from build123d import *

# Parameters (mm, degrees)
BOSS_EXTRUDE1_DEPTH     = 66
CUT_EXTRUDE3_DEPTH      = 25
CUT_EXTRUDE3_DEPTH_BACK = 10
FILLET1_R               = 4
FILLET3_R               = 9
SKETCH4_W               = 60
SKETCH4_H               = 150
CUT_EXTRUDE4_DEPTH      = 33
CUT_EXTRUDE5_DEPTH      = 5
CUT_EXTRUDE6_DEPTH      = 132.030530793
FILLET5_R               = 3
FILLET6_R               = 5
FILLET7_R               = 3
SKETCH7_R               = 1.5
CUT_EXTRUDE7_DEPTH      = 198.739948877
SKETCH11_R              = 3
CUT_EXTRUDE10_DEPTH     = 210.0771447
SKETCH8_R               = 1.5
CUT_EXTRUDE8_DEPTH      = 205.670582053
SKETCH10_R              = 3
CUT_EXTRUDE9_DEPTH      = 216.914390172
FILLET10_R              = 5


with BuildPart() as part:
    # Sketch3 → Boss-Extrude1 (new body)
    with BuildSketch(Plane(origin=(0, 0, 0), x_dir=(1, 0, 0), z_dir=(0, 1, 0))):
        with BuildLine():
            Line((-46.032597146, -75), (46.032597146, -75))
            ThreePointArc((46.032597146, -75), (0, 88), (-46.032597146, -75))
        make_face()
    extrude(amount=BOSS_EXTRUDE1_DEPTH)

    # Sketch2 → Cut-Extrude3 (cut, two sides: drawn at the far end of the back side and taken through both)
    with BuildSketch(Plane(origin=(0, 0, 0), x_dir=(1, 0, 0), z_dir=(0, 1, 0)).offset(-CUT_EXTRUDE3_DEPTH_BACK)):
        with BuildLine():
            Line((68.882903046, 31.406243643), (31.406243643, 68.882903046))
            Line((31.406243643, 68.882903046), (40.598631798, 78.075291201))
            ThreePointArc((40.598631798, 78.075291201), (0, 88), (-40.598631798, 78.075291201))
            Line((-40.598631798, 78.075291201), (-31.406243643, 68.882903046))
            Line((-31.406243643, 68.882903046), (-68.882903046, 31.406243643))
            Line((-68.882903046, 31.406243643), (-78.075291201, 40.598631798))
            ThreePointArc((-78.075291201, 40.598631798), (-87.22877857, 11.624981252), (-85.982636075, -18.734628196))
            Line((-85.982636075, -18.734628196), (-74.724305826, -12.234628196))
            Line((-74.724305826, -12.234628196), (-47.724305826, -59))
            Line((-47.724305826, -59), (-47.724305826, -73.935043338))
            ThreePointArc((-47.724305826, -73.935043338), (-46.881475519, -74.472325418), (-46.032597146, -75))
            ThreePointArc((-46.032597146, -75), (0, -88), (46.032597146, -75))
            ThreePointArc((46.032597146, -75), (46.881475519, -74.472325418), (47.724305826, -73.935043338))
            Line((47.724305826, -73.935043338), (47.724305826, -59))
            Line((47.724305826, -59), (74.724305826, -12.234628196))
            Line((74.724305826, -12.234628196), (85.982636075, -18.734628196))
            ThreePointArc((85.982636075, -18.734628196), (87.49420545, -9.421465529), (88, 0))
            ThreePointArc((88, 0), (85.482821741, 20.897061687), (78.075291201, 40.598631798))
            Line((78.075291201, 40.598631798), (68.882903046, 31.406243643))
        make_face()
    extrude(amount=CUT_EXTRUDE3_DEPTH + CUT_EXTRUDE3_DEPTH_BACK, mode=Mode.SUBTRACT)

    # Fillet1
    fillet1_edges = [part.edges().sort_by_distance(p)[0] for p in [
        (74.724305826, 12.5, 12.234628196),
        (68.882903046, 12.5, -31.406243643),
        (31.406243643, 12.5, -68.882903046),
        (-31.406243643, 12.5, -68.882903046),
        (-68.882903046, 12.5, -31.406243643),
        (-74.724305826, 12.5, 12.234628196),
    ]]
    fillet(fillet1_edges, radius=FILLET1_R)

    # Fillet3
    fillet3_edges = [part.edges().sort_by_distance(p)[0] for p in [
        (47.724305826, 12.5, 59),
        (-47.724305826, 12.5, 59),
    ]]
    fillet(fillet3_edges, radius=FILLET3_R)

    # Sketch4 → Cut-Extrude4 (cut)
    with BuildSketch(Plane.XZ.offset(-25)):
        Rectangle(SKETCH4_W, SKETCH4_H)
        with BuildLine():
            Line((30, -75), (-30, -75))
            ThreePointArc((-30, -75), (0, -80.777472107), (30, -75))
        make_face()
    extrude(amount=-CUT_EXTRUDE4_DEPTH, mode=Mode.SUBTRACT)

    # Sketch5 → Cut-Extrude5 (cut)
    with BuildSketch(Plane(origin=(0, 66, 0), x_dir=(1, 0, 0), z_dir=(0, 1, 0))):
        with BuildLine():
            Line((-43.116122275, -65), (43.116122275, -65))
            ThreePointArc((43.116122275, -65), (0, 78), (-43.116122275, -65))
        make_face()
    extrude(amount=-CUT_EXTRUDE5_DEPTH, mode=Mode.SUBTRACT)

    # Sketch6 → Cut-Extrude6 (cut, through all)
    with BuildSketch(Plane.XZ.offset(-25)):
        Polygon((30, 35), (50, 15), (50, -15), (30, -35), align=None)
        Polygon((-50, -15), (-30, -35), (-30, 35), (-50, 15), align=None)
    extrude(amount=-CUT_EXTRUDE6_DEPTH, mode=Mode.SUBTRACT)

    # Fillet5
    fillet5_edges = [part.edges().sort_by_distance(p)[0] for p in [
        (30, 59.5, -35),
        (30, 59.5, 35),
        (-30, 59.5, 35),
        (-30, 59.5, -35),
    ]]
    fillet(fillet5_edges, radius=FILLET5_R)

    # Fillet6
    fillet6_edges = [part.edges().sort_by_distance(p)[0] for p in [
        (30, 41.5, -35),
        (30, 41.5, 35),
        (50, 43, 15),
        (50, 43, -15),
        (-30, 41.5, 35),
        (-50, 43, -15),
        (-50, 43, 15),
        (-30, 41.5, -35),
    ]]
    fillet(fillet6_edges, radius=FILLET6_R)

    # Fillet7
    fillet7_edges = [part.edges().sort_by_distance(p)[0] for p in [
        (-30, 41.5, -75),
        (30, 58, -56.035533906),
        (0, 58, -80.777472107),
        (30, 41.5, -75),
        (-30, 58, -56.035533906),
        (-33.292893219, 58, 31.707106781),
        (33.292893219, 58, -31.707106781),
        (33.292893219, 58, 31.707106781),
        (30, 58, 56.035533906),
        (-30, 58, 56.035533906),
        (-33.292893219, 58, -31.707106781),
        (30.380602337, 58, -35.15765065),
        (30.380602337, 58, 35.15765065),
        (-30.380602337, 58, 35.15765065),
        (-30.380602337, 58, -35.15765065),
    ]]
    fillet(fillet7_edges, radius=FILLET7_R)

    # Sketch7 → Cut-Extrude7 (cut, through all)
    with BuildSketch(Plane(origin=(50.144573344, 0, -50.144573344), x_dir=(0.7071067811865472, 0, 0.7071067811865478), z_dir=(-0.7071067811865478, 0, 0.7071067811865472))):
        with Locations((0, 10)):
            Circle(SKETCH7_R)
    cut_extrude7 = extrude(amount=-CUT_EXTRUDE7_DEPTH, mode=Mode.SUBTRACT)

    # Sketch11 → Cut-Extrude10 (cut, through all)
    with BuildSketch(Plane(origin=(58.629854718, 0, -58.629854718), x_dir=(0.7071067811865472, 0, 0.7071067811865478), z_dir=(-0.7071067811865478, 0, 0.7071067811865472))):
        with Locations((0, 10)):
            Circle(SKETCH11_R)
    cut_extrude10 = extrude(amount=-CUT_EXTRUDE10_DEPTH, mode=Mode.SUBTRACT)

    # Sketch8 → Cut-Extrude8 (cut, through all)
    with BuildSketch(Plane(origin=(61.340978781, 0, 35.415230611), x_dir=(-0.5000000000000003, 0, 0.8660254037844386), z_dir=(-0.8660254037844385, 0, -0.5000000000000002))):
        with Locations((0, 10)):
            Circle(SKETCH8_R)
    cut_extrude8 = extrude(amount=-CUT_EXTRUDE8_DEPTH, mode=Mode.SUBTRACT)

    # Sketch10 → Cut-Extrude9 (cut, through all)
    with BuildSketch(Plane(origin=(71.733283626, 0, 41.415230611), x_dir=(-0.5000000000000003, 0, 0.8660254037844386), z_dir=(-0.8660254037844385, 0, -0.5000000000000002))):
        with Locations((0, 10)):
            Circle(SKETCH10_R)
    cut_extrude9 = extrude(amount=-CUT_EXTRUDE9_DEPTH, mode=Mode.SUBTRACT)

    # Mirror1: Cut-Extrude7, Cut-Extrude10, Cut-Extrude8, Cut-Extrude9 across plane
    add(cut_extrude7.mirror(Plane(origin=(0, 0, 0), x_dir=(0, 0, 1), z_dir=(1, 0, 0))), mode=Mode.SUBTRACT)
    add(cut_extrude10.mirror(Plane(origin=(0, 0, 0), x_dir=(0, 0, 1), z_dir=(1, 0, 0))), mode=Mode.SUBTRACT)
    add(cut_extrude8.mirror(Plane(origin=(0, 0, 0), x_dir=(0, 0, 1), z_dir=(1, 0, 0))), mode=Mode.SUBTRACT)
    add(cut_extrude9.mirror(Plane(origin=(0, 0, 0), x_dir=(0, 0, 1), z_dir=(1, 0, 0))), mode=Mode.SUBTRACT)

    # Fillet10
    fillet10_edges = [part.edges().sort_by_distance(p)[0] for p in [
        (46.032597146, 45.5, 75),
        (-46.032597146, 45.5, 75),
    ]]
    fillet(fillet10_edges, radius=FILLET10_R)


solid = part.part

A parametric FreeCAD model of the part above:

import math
import FreeCAD as App
import Part
import Sketcher
Q = App.Units.Quantity


def edges_at(feature, points):
    """Names of the edges that pass closest to the given points."""
    edges = feature.Shape.Edges
    near = lambda p: min(range(len(edges)), key=lambda i: edges[i].distToShape(Part.Vertex(*p))[0])
    return sorted({f"Edge{near(p) + 1}" for p in points})

doc = App.newDocument("Part")
body = doc.addObject("PartDesign::Body", "Body")

sketch1 = body.newObject("Sketcher::SketchObject", "Sketch")
sketch1.AttachmentSupport = (doc.getObject("XZ_Plane"), [""])
sketch1.MapMode = "FlatFace"
sketch1.addGeometry(Part.LineSegment(App.Vector(-46, 75, 0), App.Vector(46, 75, 0)), False)
sketch1.addGeometry(Part.ArcOfCircle(Part.Circle(App.Vector(0, 0, 0), App.Vector(0, 0, 1), 88), math.radians(122), math.radians(418)), False)
sketch1.addConstraint(Sketcher.Constraint("Coincident", 0, 1, 1, 1))
sketch1.addConstraint(Sketcher.Constraint("Coincident", 1, 2, 0, 2))
sketch1.addConstraint(Sketcher.Constraint("Horizontal", 0))
sketch1.addConstraint(Sketcher.Constraint("Coincident", 1, 3, -1, 1))
sketch1.addConstraint(Sketcher.Constraint("Radius", 1, Q("88 mm")))
sketch1.addConstraint(Sketcher.Constraint("DistanceY", -1, 1, 0, 1, Q("75 mm")))
pad1 = body.newObject("PartDesign::Pad", "Pad")
pad1.Profile = sketch1
pad1.Length = 66
pad1.Reversed = True

sketch2 = body.newObject("Sketcher::SketchObject", "Sketch001")
sketch2.AttachmentSupport = (doc.getObject("XZ_Plane"), [""])
sketch2.MapMode = "FlatFace"
sketch2.addGeometry(Part.LineSegment(App.Vector(68.9, -31.4, 0), App.Vector(31.4, -68.9, 0)), False)
sketch2.addGeometry(Part.LineSegment(App.Vector(31.4, -68.9, 0), App.Vector(40.6, -78.1, 0)), False)
sketch2.addGeometry(Part.ArcOfCircle(Part.Circle(App.Vector(0, 0, 0), App.Vector(0, 0, 1), 88), math.radians(-117), math.radians(-63)), False)
sketch2.addGeometry(Part.LineSegment(App.Vector(-40.6, -78.1, 0), App.Vector(-31.4, -68.9, 0)), False)
sketch2.addGeometry(Part.LineSegment(App.Vector(-31.4, -68.9, 0), App.Vector(-68.9, -31.4, 0)), False)
sketch2.addGeometry(Part.LineSegment(App.Vector(-68.9, -31.4, 0), App.Vector(-78.1, -40.6, 0)), False)
sketch2.addGeometry(Part.ArcOfCircle(Part.Circle(App.Vector(0, 0, 0), App.Vector(0, 0, 1), 88), math.radians(168), math.radians(207)), False)
sketch2.addGeometry(Part.LineSegment(App.Vector(-86, 18.7, 0), App.Vector(-74.7, 12.2, 0)), False)
sketch2.addGeometry(Part.LineSegment(App.Vector(-74.7, 12.2, 0), App.Vector(-47.7, 59, 0)), False)
sketch2.addGeometry(Part.LineSegment(App.Vector(-47.7, 59, 0), App.Vector(-47.7, 73.9, 0)), False)
sketch2.addGeometry(Part.ArcOfCircle(Part.Circle(App.Vector(0, 0, 0), App.Vector(0, 0, 1), 88), math.radians(121.54), math.radians(122.84)), False)
sketch2.addGeometry(Part.ArcOfCircle(Part.Circle(App.Vector(0, 0, 0), App.Vector(0, 0, 1), 88), math.radians(58), math.radians(122)), False)
sketch2.addGeometry(Part.ArcOfCircle(Part.Circle(App.Vector(0, 0, 0), App.Vector(0, 0, 1), 88), math.radians(57.16), math.radians(58.46)), False)
sketch2.addGeometry(Part.LineSegment(App.Vector(47.7, 73.9, 0), App.Vector(47.7, 59, 0)), False)
sketch2.addGeometry(Part.LineSegment(App.Vector(47.7, 59, 0), App.Vector(74.7, 12.2, 0)), False)
sketch2.addGeometry(Part.LineSegment(App.Vector(74.7, 12.2, 0), App.Vector(86, 18.7, 0)), False)
sketch2.addGeometry(Part.ArcOfCircle(Part.Circle(App.Vector(0, 0, 0), App.Vector(0, 0, 1), 88), math.radians(0), math.radians(12.29)), False)
sketch2.addGeometry(Part.ArcOfCircle(Part.Circle(App.Vector(0, 0, 0), App.Vector(0, 0, 1), 88), math.radians(-27), math.radians(0)), False)
sketch2.addGeometry(Part.LineSegment(App.Vector(78.1, -40.6, 0), App.Vector(68.9, -31.4, 0)), False)
sketch2.addConstraint(Sketcher.Constraint("Coincident", 0, 2, 1, 1))
sketch2.addConstraint(Sketcher.Constraint("Coincident", 1, 2, 2, 2))
sketch2.addConstraint(Sketcher.Constraint("Coincident", 2, 1, 3, 1))
sketch2.addConstraint(Sketcher.Constraint("Coincident", 3, 2, 4, 1))
sketch2.addConstraint(Sketcher.Constraint("Coincident", 4, 2, 5, 1))
sketch2.addConstraint(Sketcher.Constraint("Coincident", 5, 2, 6, 2))
sketch2.addConstraint(Sketcher.Constraint("Coincident", 6, 1, 7, 1))
sketch2.addConstraint(Sketcher.Constraint("Coincident", 7, 2, 8, 1))
sketch2.addConstraint(Sketcher.Constraint("Coincident", 8, 2, 9, 1))
sketch2.addConstraint(Sketcher.Constraint("Coincident", 9, 2, 10, 2))
sketch2.addConstraint(Sketcher.Constraint("Tangent", 10, 1, 11, 2))
sketch2.addConstraint(Sketcher.Constraint("Tangent", 11, 1, 12, 2))
sketch2.addConstraint(Sketcher.Constraint("Coincident", 12, 1, 13, 1))
sketch2.addConstraint(Sketcher.Constraint("Coincident", 13, 2, 14, 1))
sketch2.addConstraint(Sketcher.Constraint("Coincident", 14, 2, 15, 1))
sketch2.addConstraint(Sketcher.Constraint("Coincident", 15, 2, 16, 2))
sketch2.addConstraint(Sketcher.Constraint("Tangent", 16, 1, 17, 2))
sketch2.addConstraint(Sketcher.Constraint("Coincident", 17, 1, 18, 1))
sketch2.addConstraint(Sketcher.Constraint("Coincident", 18, 2, 0, 1))
sketch2.addConstraint(Sketcher.Constraint("Vertical", 9))
sketch2.addConstraint(Sketcher.Constraint("Vertical", 13))
sketch2.addConstraint(Sketcher.Constraint("Coincident", 2, 3, -1, 1))
sketch2.addConstraint(Sketcher.Constraint("Coincident", 6, 3, -1, 1))
sketch2.addConstraint(Sketcher.Constraint("Coincident", 10, 3, -1, 1))
sketch2.addConstraint(Sketcher.Constraint("Coincident", 12, 3, -1, 1))
sketch2.addConstraint(Sketcher.Constraint("Coincident", 16, 3, -1, 1))
sketch2.addConstraint(Sketcher.Constraint("Equal", 2, 6))
sketch2.addConstraint(Sketcher.Constraint("Equal", 6, 10))
sketch2.addConstraint(Sketcher.Constraint("Equal", 12, 16))
sketch2.addConstraint(Sketcher.Constraint("Equal", 16, 17))
sketch2.addConstraint(Sketcher.Constraint("Symmetric", 0, 2, 3, 2, -2))
sketch2.addConstraint(Sketcher.Constraint("Symmetric", 8, 2, 13, 2, -2))
sketch2.addConstraint(Sketcher.Constraint("Symmetric", 7, 2, 14, 2, -2))
sketch2.addConstraint(Sketcher.Constraint("Symmetric", 4, 2, 18, 2, -2))
sketch2.addConstraint(Sketcher.Constraint("PointOnObject", 16, 1, -1))
sketch2.addConstraint(Sketcher.Constraint("Perpendicular", 0, 1))
sketch2.addConstraint(Sketcher.Constraint("Perpendicular", 1, 3))
sketch2.addConstraint(Sketcher.Constraint("Perpendicular", 3, 4))
sketch2.addConstraint(Sketcher.Constraint("Perpendicular", 4, 5))
sketch2.addConstraint(Sketcher.Constraint("Perpendicular", 7, 8))
sketch2.addConstraint(Sketcher.Constraint("Perpendicular", 14, 15))
sketch2.addConstraint(Sketcher.Constraint("Perpendicular", 5, 18))
sketch2.addConstraint(Sketcher.Constraint("Horizontal", 10, 1, 11, 1))
sketch2.addConstraint(Sketcher.Constraint("Equal", 3, 5))
sketch2.addConstraint(Sketcher.Constraint("Equal", 5, 7))
sketch2.addConstraint(Sketcher.Constraint("Radius", 2, Q("88 mm")))
sketch2.addConstraint(Sketcher.Constraint("Angle", 7, Q("-30 deg")))
sketch2.addConstraint(Sketcher.Constraint("Distance", 0, Q("53 mm")))
sketch2.addConstraint(Sketcher.Constraint("Distance", 1, Q("13 mm")))
sketch2.addConstraint(Sketcher.Constraint("Distance", 8, Q("54 mm")))
sketch2.addConstraint(Sketcher.Constraint("DistanceY", -1, 1, 8, 2, Q("59 mm")))
sketch2.addConstraint(Sketcher.Constraint("DistanceY", -1, 1, 10, 1, Q("75 mm")))
pocket1 = body.newObject("PartDesign::Pocket", "Pocket")
pocket1.Profile = sketch2
pocket1.Type = "TwoLengths"
pocket1.Length = 25
pocket1.Length2 = 10
doc.recompute()

fillet = body.newObject("PartDesign::Fillet", "Fillet")
fillet.Base = (pocket1, edges_at(pocket1, [
    (74.724, 12.5, 12.235),
    (68.883, 12.5, -31.406),
    (31.406, 12.5, -68.883),
    (-31.406, 12.5, -68.883),
    (-68.883, 12.5, -31.406),
    (-74.724, 12.5, 12.235),
]))
fillet.Radius = 4
doc.recompute()

fillet2 = body.newObject("PartDesign::Fillet", "Fillet001")
fillet2.Base = (fillet, edges_at(fillet, [(47.724, 12.5, 59), (-47.724, 12.5, 59)]))
fillet2.Radius = 9

sketch3 = body.newObject("Sketcher::SketchObject", "Sketch002")
sketch3.AttachmentSupport = (doc.getObject("XZ_Plane"), [""])
sketch3.MapMode = "FlatFace"
sketch3.AttachmentOffset = App.Placement(App.Vector(0, 0, -25), App.Rotation())
sketch3.addGeometry(Part.LineSegment(App.Vector(-30, 75, 0), App.Vector(-30, -75, 0)), False)
sketch3.addGeometry(Part.ArcOfCircle(Part.Circle(App.Vector(0, 0, 0), App.Vector(0, 0, 1), 81), math.radians(-112), math.radians(-68)), False)
sketch3.addGeometry(Part.LineSegment(App.Vector(30, -75, 0), App.Vector(30, 75, 0)), False)
sketch3.addGeometry(Part.LineSegment(App.Vector(30, 75, 0), App.Vector(-30, 75, 0)), False)
sketch3.addConstraint(Sketcher.Constraint("Coincident", 0, 2, 1, 1))
sketch3.addConstraint(Sketcher.Constraint("Coincident", 1, 2, 2, 1))
sketch3.addConstraint(Sketcher.Constraint("Coincident", 2, 2, 3, 1))
sketch3.addConstraint(Sketcher.Constraint("Coincident", 3, 2, 0, 1))
sketch3.addConstraint(Sketcher.Constraint("Vertical", 0))
sketch3.addConstraint(Sketcher.Constraint("Vertical", 2))
sketch3.addConstraint(Sketcher.Constraint("Horizontal", 3))
sketch3.addConstraint(Sketcher.Constraint("Coincident", 1, 3, -1, 1))
sketch3.addConstraint(Sketcher.Constraint("Symmetric", 0, 2, 2, 2, -1, 1))
sketch3.addConstraint(Sketcher.Constraint("DistanceX", 3, 2, 3, 1, Q("60 mm")))
sketch3.addConstraint(Sketcher.Constraint("DistanceY", 0, 2, 0, 1, Q("150 mm")))
pocket2 = body.newObject("PartDesign::Pocket", "Pocket001")
pocket2.Profile = sketch3
pocket2.Length = 33

sketch4 = body.newObject("Sketcher::SketchObject", "Sketch003")
sketch4.AttachmentSupport = (doc.getObject("XZ_Plane"), [""])
sketch4.MapMode = "FlatFace"
sketch4.AttachmentOffset = App.Placement(App.Vector(0, 0, -66), App.Rotation())
sketch4.addGeometry(Part.LineSegment(App.Vector(-43, 65, 0), App.Vector(43, 65, 0)), False)
sketch4.addGeometry(Part.ArcOfCircle(Part.Circle(App.Vector(0, 0, 0), App.Vector(0, 0, 1), 78), math.radians(124), math.radians(416)), False)
sketch4.addConstraint(Sketcher.Constraint("Coincident", 0, 1, 1, 1))
sketch4.addConstraint(Sketcher.Constraint("Coincident", 1, 2, 0, 2))
sketch4.addConstraint(Sketcher.Constraint("Horizontal", 0))
sketch4.addConstraint(Sketcher.Constraint("Coincident", 1, 3, -1, 1))
sketch4.addConstraint(Sketcher.Constraint("Radius", 1, Q("78 mm")))
sketch4.addConstraint(Sketcher.Constraint("DistanceY", -1, 1, 0, 1, Q("65 mm")))
pocket3 = body.newObject("PartDesign::Pocket", "Pocket002")
pocket3.Profile = sketch4
pocket3.Length = 5
pocket3.Reversed = True

sketch5 = body.newObject("Sketcher::SketchObject", "Sketch004")
sketch5.AttachmentSupport = (doc.getObject("XZ_Plane"), [""])
sketch5.MapMode = "FlatFace"
sketch5.AttachmentOffset = App.Placement(App.Vector(0, 0, -25), App.Rotation())
sketch5.addGeometry(Part.LineSegment(App.Vector(50, 15, 0), App.Vector(30, 35, 0)), False)
sketch5.addGeometry(Part.LineSegment(App.Vector(30, 35, 0), App.Vector(30, -35, 0)), False)
sketch5.addGeometry(Part.LineSegment(App.Vector(30, -35, 0), App.Vector(50, -15, 0)), False)
sketch5.addGeometry(Part.LineSegment(App.Vector(50, -15, 0), App.Vector(50, 15, 0)), False)
sketch5.addGeometry(Part.LineSegment(App.Vector(-50, -15, 0), App.Vector(-30, -35, 0)), False)
sketch5.addGeometry(Part.LineSegment(App.Vector(-30, -35, 0), App.Vector(-30, 35, 0)), False)
sketch5.addGeometry(Part.LineSegment(App.Vector(-30, 35, 0), App.Vector(-50, 15, 0)), False)
sketch5.addGeometry(Part.LineSegment(App.Vector(-50, 15, 0), App.Vector(-50, -15, 0)), False)
sketch5.addConstraint(Sketcher.Constraint("Coincident", 0, 2, 1, 1))
sketch5.addConstraint(Sketcher.Constraint("Coincident", 1, 2, 2, 1))
sketch5.addConstraint(Sketcher.Constraint("Coincident", 2, 2, 3, 1))
sketch5.addConstraint(Sketcher.Constraint("Coincident", 3, 2, 0, 1))
sketch5.addConstraint(Sketcher.Constraint("Coincident", 4, 2, 5, 1))
sketch5.addConstraint(Sketcher.Constraint("Coincident", 5, 2, 6, 1))
sketch5.addConstraint(Sketcher.Constraint("Coincident", 6, 2, 7, 1))
sketch5.addConstraint(Sketcher.Constraint("Coincident", 7, 2, 4, 1))
sketch5.addConstraint(Sketcher.Constraint("Vertical", 1))
sketch5.addConstraint(Sketcher.Constraint("Vertical", 3))
sketch5.addConstraint(Sketcher.Constraint("Vertical", 5))
sketch5.addConstraint(Sketcher.Constraint("Vertical", 7))
sketch5.addConstraint(Sketcher.Constraint("Symmetric", 0, 2, 4, 2, -1, 1))
sketch5.addConstraint(Sketcher.Constraint("Symmetric", 2, 2, 6, 2, -1, 1))
sketch5.addConstraint(Sketcher.Constraint("Perpendicular", 0, 2))
sketch5.addConstraint(Sketcher.Constraint("Perpendicular", 2, 4))
sketch5.addConstraint(Sketcher.Constraint("Perpendicular", 4, 6))
sketch5.addConstraint(Sketcher.Constraint("Horizontal", 1, 2, 4, 2))
sketch5.addConstraint(Sketcher.Constraint("Horizontal", 3, 2, 6, 2))
sketch5.addConstraint(Sketcher.Constraint("DistanceY", 1, 2, 1, 1, Q("70 mm")))
sketch5.addConstraint(Sketcher.Constraint("DistanceY", 3, 1, 3, 2, Q("30 mm")))
sketch5.addConstraint(Sketcher.Constraint("DistanceX", -1, 1, 0, 2, Q("30 mm")))
pocket4 = body.newObject("PartDesign::Pocket", "Pocket003")
pocket4.Profile = sketch5
pocket4.Type = "ThroughAll"
doc.recompute()

fillet3 = body.newObject("PartDesign::Fillet", "Fillet002")
fillet3.Base = (pocket4, edges_at(pocket4, [
    (30, 59.5, -35),
    (30, 59.5, 35),
    (-30, 59.5, 35),
    (-30, 59.5, -35),
]))
fillet3.Radius = 3
doc.recompute()

fillet4 = body.newObject("PartDesign::Fillet", "Fillet003")
fillet4.Base = (fillet3, edges_at(fillet3, [
    (30, 41.5, -35),
    (30, 41.5, 35),
    (50, 43, 15),
    (50, 43, -15),
    (-30, 41.5, 35),
    (-50, 43, -15),
    (-50, 43, 15),
    (-30, 41.5, -35),
]))
fillet4.Radius = 5
doc.recompute()

fillet5 = body.newObject("PartDesign::Fillet", "Fillet004")
fillet5.Base = (fillet4, edges_at(fillet4, [
    (-30, 41.5, -75),
    (30, 58, -56.036),
    (0, 58, -80.777),
    (30, 41.5, -75),
    (-30, 58, -56.036),
    (-33.293, 58, 31.707),
    (33.293, 58, -31.707),
    (33.293, 58, 31.707),
    (30, 58, 56.036),
    (-30, 58, 56.036),
    (-33.293, 58, -31.707),
    (30.381, 58, -35.158),
    (30.381, 58, 35.158),
    (-30.381, 58, 35.158),
    (-30.381, 58, -35.158),
]))
fillet5.Radius = 3

sketch6 = body.newObject("Sketcher::SketchObject", "Sketch005")
sketch6.Placement = App.Placement(App.Vector(50.144573, 0, -50.144573), App.Rotation(App.Vector(0.707106781, 0, 0.707106781), App.Vector(0, 0.999999999, 0), App.Vector(-0.707106781, 0, 0.707106781), "ZXY"))
sketch6.addGeometry(Part.Circle(App.Vector(0, 10, 0), App.Vector(0, 0, 1), 1.5), False)
sketch6.addConstraint(Sketcher.Constraint("PointOnObject", 0, 3, -2))
sketch6.addConstraint(Sketcher.Constraint("Diameter", 0, Q("3 mm")))
sketch6.addConstraint(Sketcher.Constraint("DistanceY", -1, 1, 0, 3, Q("10 mm")))
pocket5 = body.newObject("PartDesign::Pocket", "Pocket004")
pocket5.Profile = sketch6
pocket5.Type = "ThroughAll"

sketch7 = body.newObject("Sketcher::SketchObject", "Sketch006")
sketch7.Placement = App.Placement(App.Vector(58.629855, 0, -58.629855), App.Rotation(App.Vector(0.707106781, 0, 0.707106781), App.Vector(0, 0.999999999, 0), App.Vector(-0.707106781, 0, 0.707106781), "ZXY"))
sketch7.addGeometry(Part.Circle(App.Vector(0, 10, 0), App.Vector(0, 0, 1), 3), False)
sketch7.addConstraint(Sketcher.Constraint("PointOnObject", 0, 3, -2))
sketch7.addConstraint(Sketcher.Constraint("Diameter", 0, Q("6 mm")))
sketch7.addConstraint(Sketcher.Constraint("DistanceY", -1, 1, 0, 3, Q("10 mm")))
pocket6 = body.newObject("PartDesign::Pocket", "Pocket005")
pocket6.Profile = sketch7
pocket6.Type = "ThroughAll"

sketch8 = body.newObject("Sketcher::SketchObject", "Sketch007")
sketch8.Placement = App.Placement(App.Vector(61.340979, 0, 35.415231), App.Rotation(App.Vector(-0.5, 0, 0.866025404), App.Vector(0, 1, 0), App.Vector(-0.866025404, 0, -0.5), "ZXY"))
sketch8.addGeometry(Part.Circle(App.Vector(0, 10, 0), App.Vector(0, 0, 1), 1.5), False)
sketch8.addConstraint(Sketcher.Constraint("PointOnObject", 0, 3, -2))
sketch8.addConstraint(Sketcher.Constraint("Diameter", 0, Q("3 mm")))
sketch8.addConstraint(Sketcher.Constraint("DistanceY", -1, 1, 0, 3, Q("10 mm")))
pocket7 = body.newObject("PartDesign::Pocket", "Pocket006")
pocket7.Profile = sketch8
pocket7.Type = "ThroughAll"

sketch9 = body.newObject("Sketcher::SketchObject", "Sketch008")
sketch9.Placement = App.Placement(App.Vector(71.733284, 0, 41.415231), App.Rotation(App.Vector(-0.5, 0, 0.866025404), App.Vector(0, 1, 0), App.Vector(-0.866025404, 0, -0.5), "ZXY"))
sketch9.addGeometry(Part.Circle(App.Vector(0, 10, 0), App.Vector(0, 0, 1), 3), False)
sketch9.addConstraint(Sketcher.Constraint("PointOnObject", 0, 3, -2))
sketch9.addConstraint(Sketcher.Constraint("Diameter", 0, Q("6 mm")))
sketch9.addConstraint(Sketcher.Constraint("DistanceY", -1, 1, 0, 3, Q("10 mm")))
pocket8 = body.newObject("PartDesign::Pocket", "Pocket007")
pocket8.Profile = sketch9
pocket8.Type = "ThroughAll"
doc.recompute()

mirrored = body.newObject("PartDesign::Mirrored", "Mirrored")
mirrored.Originals = [pocket5, pocket6, pocket7, pocket8]
mirrored.MirrorPlane = (doc.getObject("YZ_Plane"), [""])
body.Tip = mirrored
doc.recompute()

fillet6 = body.newObject("PartDesign::Fillet", "Fillet005")
fillet6.Base = (mirrored, edges_at(mirrored, [(46.033, 45.5, 75), (-46.033, 45.5, 75)]))
fillet6.Radius = 5

doc.recompute()
